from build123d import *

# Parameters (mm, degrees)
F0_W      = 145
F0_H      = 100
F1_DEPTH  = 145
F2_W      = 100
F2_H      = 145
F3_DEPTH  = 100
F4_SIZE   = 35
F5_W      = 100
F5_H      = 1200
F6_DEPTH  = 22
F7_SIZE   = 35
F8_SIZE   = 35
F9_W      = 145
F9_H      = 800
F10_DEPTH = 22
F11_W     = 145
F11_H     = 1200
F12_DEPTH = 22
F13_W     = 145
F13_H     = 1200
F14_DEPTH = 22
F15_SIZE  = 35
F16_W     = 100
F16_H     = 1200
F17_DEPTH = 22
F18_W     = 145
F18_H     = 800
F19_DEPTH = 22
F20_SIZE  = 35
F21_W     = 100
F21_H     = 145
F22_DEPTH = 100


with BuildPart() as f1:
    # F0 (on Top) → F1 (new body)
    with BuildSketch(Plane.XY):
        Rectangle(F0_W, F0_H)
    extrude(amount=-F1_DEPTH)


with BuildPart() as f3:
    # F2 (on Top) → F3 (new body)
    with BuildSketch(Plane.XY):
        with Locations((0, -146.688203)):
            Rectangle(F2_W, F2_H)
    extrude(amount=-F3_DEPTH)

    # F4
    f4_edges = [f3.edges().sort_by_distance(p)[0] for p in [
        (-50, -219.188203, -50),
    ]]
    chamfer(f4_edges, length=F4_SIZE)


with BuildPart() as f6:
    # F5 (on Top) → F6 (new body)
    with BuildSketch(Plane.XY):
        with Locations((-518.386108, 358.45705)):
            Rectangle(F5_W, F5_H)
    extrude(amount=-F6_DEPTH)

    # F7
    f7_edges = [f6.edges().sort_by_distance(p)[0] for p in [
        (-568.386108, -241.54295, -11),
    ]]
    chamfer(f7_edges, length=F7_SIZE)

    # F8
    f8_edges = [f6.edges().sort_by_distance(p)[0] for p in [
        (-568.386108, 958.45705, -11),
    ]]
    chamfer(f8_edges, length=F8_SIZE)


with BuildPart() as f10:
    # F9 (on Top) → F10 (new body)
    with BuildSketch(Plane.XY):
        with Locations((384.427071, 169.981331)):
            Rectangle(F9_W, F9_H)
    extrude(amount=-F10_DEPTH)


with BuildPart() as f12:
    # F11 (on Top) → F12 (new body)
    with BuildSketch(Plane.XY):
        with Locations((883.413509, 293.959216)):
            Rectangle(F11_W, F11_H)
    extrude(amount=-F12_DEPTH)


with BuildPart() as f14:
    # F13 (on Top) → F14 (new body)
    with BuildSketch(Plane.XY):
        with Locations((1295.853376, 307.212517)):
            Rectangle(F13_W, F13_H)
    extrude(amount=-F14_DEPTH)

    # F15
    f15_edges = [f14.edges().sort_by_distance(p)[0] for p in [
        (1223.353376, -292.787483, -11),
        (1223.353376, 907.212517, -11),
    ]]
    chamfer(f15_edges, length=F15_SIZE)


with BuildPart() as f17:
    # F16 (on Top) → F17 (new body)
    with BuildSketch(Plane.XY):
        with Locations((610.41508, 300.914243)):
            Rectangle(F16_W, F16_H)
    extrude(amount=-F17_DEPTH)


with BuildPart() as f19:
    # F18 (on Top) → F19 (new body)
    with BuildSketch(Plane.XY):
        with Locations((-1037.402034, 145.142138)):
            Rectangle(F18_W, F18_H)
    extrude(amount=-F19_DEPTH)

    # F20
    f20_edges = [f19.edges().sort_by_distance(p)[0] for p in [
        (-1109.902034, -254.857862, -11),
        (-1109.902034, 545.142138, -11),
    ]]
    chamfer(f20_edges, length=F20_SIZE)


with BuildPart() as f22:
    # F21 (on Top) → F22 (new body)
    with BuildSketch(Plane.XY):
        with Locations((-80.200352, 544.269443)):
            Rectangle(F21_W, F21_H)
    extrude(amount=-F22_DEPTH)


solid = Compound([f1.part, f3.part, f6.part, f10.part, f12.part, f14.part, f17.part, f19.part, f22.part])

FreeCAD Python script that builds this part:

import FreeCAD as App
import Part
import Sketcher

V = App.Vector
Q = App.Units.Quantity


def edges_at(feature, points):
    """Names of the edges that pass closest to the given points."""
    edges = feature.Shape.Edges
    near = lambda p: min(range(len(edges)), key=lambda i: edges[i].distToShape(Part.Vertex(*p))[0])
    return sorted({f"Edge{near(p) + 1}" for p in points})


def add_polygon(sketch, points):
    """Adds a closed chain of lines whose ends are joined by coincident constraints."""
    first, n = sketch.GeometryCount, len(points)
    for a, b in zip(points, points[1:] + points[:1]):
        sketch.addGeometry(Part.LineSegment(App.Vector(*a, 0), App.Vector(*b, 0)), False)
    for i in range(n):
        sketch.addConstraint(Sketcher.Constraint("Coincident", first + i, 2, first + (i + 1) % n, 1))

doc = App.newDocument("Part")
body = doc.addObject("PartDesign::Body", "Body")

# Sketch on XY plane
sketch1 = body.newObject("Sketcher::SketchObject", "Sketch")
sketch1.AttachmentSupport = (doc.getObject("XY_Plane"), [""])
sketch1.MapMode = "FlatFace"
add_polygon(sketch1, [(-72, 50), (-72, -50), (72, -50), (72, 50)])  # lines 0-3
sketch1.addConstraint([
    Sketcher.Constraint("Vertical", 0),
    Sketcher.Constraint("Horizontal", 1),
    Sketcher.Constraint("Vertical", 2),
    Sketcher.Constraint("Horizontal", 3),
    Sketcher.Constraint("Symmetric", 0, 2, 2, 2, -1, 1),
    Sketcher.Constraint("DistanceX", 1, 1, 1, 2, Q("145 mm")),
    Sketcher.Constraint("DistanceY", 0, 2, 0, 1, Q("100 mm")),
])
pad1 = body.newObject("PartDesign::Pad", "Pad")
pad1.Profile = sketch1
pad1.Length = 145
pad1.Reversed = True
body2 = doc.addObject("PartDesign::Body", "Body001")

# Sketch on XY plane
sketch2 = body2.newObject("Sketcher::SketchObject", "Sketch001")
sketch2.AttachmentSupport = (doc.getObject("XY_Plane001"), [""])
sketch2.MapMode = "FlatFace"
add_polygon(sketch2, [(-50, -74), (-50, -219), (50, -219), (50, -74)])  # lines 0-3
sketch2.addConstraint([
    Sketcher.Constraint("Vertical", 0),
    Sketcher.Constraint("Horizontal", 1),
    Sketcher.Constraint("Vertical", 2),
    Sketcher.Constraint("Horizontal", 3),
    Sketcher.Constraint("DistanceX", 1, 1, 1, 2, Q("100 mm")),
    Sketcher.Constraint("DistanceY", 0, 2, 0, 1, Q("145 mm")),
    Sketcher.Constraint("DistanceX", 0, 2, -1, 1, Q("50 mm")),
    Sketcher.Constraint("DistanceY", 0, 2, -1, 1, Q("219.188203 mm")),
])
pad2 = body2.newObject("PartDesign::Pad", "Pad001")
pad2.Profile = sketch2
pad2.Length = 100
pad2.Reversed = True
doc.recompute()

chamfer = body2.newObject("PartDesign::Chamfer", "Chamfer")
chamfer.Base = (pad2, edges_at(pad2, [(-50, -219.188, -50)]))
chamfer.Size = 35
body3 = doc.addObject("PartDesign::Body", "Body002")

# Sketch on XY plane
sketch3 = body3.newObject("Sketcher::SketchObject", "Sketch002")
sketch3.AttachmentSupport = (doc.getObject("XY_Plane002"), [""])
sketch3.MapMode = "FlatFace"
add_polygon(sketch3, [(-568, 958), (-568, -242), (-468, -242), (-468, 958)])  # lines 0-3
sketch3.addConstraint([
    Sketcher.Constraint("Vertical", 0),
    Sketcher.Constraint("Horizontal", 1),
    Sketcher.Constraint("Vertical", 2),
    Sketcher.Constraint("Horizontal", 3),
    Sketcher.Constraint("DistanceX", 1, 1, 1, 2, Q("100 mm")),
    Sketcher.Constraint("DistanceY", 0, 2, 0, 1, Q("1200 mm")),
    Sketcher.Constraint("DistanceX", 0, 2, -1, 1, Q("568.386108 mm")),
    Sketcher.Constraint("DistanceY", 0, 2, -1, 1, Q("241.54295 mm")),
])
pad3 = body3.newObject("PartDesign::Pad", "Pad002")
pad3.Profile = sketch3
pad3.Length = 22
pad3.Reversed = True
doc.recompute()

chamfer2 = body3.newObject("PartDesign::Chamfer", "Chamfer001")
chamfer2.Base = (pad3, edges_at(pad3, [(-568.386, -241.543, -11)]))
chamfer2.Size = 35
doc.recompute()

chamfer3 = body3.newObject("PartDesign::Chamfer", "Chamfer002")
chamfer3.Base = (chamfer2, edges_at(chamfer2, [(-568.386, 958.457, -11)]))
chamfer3.Size = 35
body4 = doc.addObject("PartDesign::Body", "Body003")

# Sketch on XY plane
sketch4 = body4.newObject("Sketcher::SketchObject", "Sketch003")
sketch4.AttachmentSupport = (doc.getObject("XY_Plane003"), [""])
sketch4.MapMode = "FlatFace"
add_polygon(sketch4, [(312, 570), (312, -230), (457, -230), (457, 570)])  # lines 0-3
sketch4.addConstraint([
    Sketcher.Constraint("Vertical", 0),
    Sketcher.Constraint("Horizontal", 1),
    Sketcher.Constraint("Vertical", 2),
    Sketcher.Constraint("Horizontal", 3),
    Sketcher.Constraint("DistanceX", 1, 1, 1, 2, Q("145 mm")),
    Sketcher.Constraint("DistanceY", 0, 2, 0, 1, Q("800 mm")),
    Sketcher.Constraint("DistanceX", -1, 1, 0, 2, Q("311.927071 mm")),
    Sketcher.Constraint("DistanceY", 0, 2, -1, 1, Q("230.018669 mm")),
])
pad4 = body4.newObject("PartDesign::Pad", "Pad003")
pad4.Profile = sketch4
pad4.Length = 22
pad4.Reversed = True
body5 = doc.addObject("PartDesign::Body", "Body004")

# Sketch on XY plane
sketch5 = body5.newObject("Sketcher::SketchObject", "Sketch004")
sketch5.AttachmentSupport = (doc.getObject("XY_Plane004"), [""])
sketch5.MapMode = "FlatFace"
add_polygon(sketch5, [(811, 894), (811, -306), (956, -306), (956, 894)])  # lines 0-3
sketch5.addConstraint([
    Sketcher.Constraint("Vertical", 0),
    Sketcher.Constraint("Horizontal", 1),
    Sketcher.Constraint("Vertical", 2),
    Sketcher.Constraint("Horizontal", 3),
    Sketcher.Constraint("DistanceX", 1, 1, 1, 2, Q("145 mm")),
    Sketcher.Constraint("DistanceY", 0, 2, 0, 1, Q("1200 mm")),
    Sketcher.Constraint("DistanceX", -1, 1, 0, 2, Q("810.913509 mm")),
    Sketcher.Constraint("DistanceY", 0, 2, -1, 1, Q("306.040784 mm")),
])
pad5 = body5.newObject("PartDesign::Pad", "Pad004")
pad5.Profile = sketch5
pad5.Length = 22
pad5.Reversed = True
body6 = doc.addObject("PartDesign::Body", "Body005")

# Sketch on XY plane
sketch6 = body6.newObject("Sketcher::SketchObject", "Sketch005")
sketch6.AttachmentSupport = (doc.getObject("XY_Plane005"), [""])
sketch6.MapMode = "FlatFace"
add_polygon(sketch6, [(1223, 907), (1223, -293), (1368, -293), (1368, 907)])  # lines 0-3
sketch6.addConstraint([
    Sketcher.Constraint("Vertical", 0),
    Sketcher.Constraint("Horizontal", 1),
    Sketcher.Constraint("Vertical", 2),
    Sketcher.Constraint("Horizontal", 3),
    Sketcher.Constraint("DistanceX", 1, 1, 1, 2, Q("145 mm")),
    Sketcher.Constraint("DistanceY", 0, 2, 0, 1, Q("1200 mm")),
    Sketcher.Constraint("DistanceX", -1, 1, 0, 2, Q("1223.353376 mm")),
    Sketcher.Constraint("DistanceY", 0, 2, -1, 1, Q("292.787483 mm")),
])
pad6 = body6.newObject("PartDesign::Pad", "Pad005")
pad6.Profile = sketch6
pad6.Length = 22
pad6.Reversed = True
doc.recompute()

chamfer4 = body6.newObject("PartDesign::Chamfer", "Chamfer003")
chamfer4.Base = (pad6, edges_at(pad6, [(1223.353, -292.787, -11), (1223.353, 907.213, -11)]))
chamfer4.Size = 35
body7 = doc.addObject("PartDesign::Body", "Body006")

# Sketch on XY plane
sketch7 = body7.newObject("Sketcher::SketchObject", "Sketch006")
sketch7.AttachmentSupport = (doc.getObject("XY_Plane006"), [""])
sketch7.MapMode = "FlatFace"
add_polygon(sketch7, [(560, 901), (560, -299), (660, -299), (660, 901)])  # lines 0-3
sketch7.addConstraint([
    Sketcher.Constraint("Vertical", 0),
    Sketcher.Constraint("Horizontal", 1),
    Sketcher.Constraint("Vertical", 2),
    Sketcher.Constraint("Horizontal", 3),
    Sketcher.Constraint("DistanceX", 1, 1, 1, 2, Q("100 mm")),
    Sketcher.Constraint("DistanceY", 0, 2, 0, 1, Q("1200 mm")),
    Sketcher.Constraint("DistanceX", -1, 1, 0, 2, Q("560.41508 mm")),
    Sketcher.Constraint("DistanceY", 0, 2, -1, 1, Q("299.085757 mm")),
])
pad7 = body7.newObject("PartDesign::Pad", "Pad006")
pad7.Profile = sketch7
pad7.Length = 22
pad7.Reversed = True
body8 = doc.addObject("PartDesign::Body", "Body007")

# Sketch on XY plane
sketch8 = body8.newObject("Sketcher::SketchObject", "Sketch007")
sketch8.AttachmentSupport = (doc.getObject("XY_Plane007"), [""])
sketch8.MapMode = "FlatFace"
add_polygon(sketch8, [(-1110, 545), (-1110, -255), (-965, -255), (-965, 545)])  # lines 0-3
sketch8.addConstraint([
    Sketcher.Constraint("Vertical", 0),
    Sketcher.Constraint("Horizontal", 1),
    Sketcher.Constraint("Vertical", 2),
    Sketcher.Constraint("Horizontal", 3),
    Sketcher.Constraint("DistanceX", 1, 1, 1, 2, Q("145 mm")),
    Sketcher.Constraint("DistanceY", 0, 2, 0, 1, Q("800 mm")),
    Sketcher.Constraint("DistanceY", -1, 1, 2, 2, Q("545.142138 mm")),
    Sketcher.Constraint("DistanceX", 0, 2, -1, 1, Q("1109.902034 mm")),
])
pad8 = body8.newObject("PartDesign::Pad", "Pad007")
pad8.Profile = sketch8
pad8.Length = 22
pad8.Reversed = True
doc.recompute()

chamfer5 = body8.newObject("PartDesign::Chamfer", "Chamfer004")
chamfer5.Base = (pad8, edges_at(pad8, [(-1109.902, -254.858, -11), (-1109.902, 545.142, -11)]))
chamfer5.Size = 35
body9 = doc.addObject("PartDesign::Body", "Body008")

# Sketch on XY plane
sketch9 = body9.newObject("Sketcher::SketchObject", "Sketch008")
sketch9.AttachmentSupport = (doc.getObject("XY_Plane008"), [""])
sketch9.MapMode = "FlatFace"
add_polygon(sketch9, [(-130, 617), (-130, 472), (-30, 472), (-30, 617)])  # lines 0-3
sketch9.addConstraint([
    Sketcher.Constraint("Vertical", 0),
    Sketcher.Constraint("Horizontal", 1),
    Sketcher.Constraint("Vertical", 2),
    Sketcher.Constraint("Horizontal", 3),
    Sketcher.Constraint("DistanceX", 1, 1, 1, 2, Q("100 mm")),
    Sketcher.Constraint("DistanceY", 0, 2, 0, 1, Q("145 mm")),
    Sketcher.Constraint("DistanceX", 1, 2, -1, 1, Q("30.200352 mm")),
    Sketcher.Constraint("DistanceY", -1, 1, 0, 2, Q("471.769443 mm")),
])
pad9 = body9.newObject("PartDesign::Pad", "Pad008")
pad9.Profile = sketch9
pad9.Length = 100
pad9.Reversed = True

doc.recompute()
